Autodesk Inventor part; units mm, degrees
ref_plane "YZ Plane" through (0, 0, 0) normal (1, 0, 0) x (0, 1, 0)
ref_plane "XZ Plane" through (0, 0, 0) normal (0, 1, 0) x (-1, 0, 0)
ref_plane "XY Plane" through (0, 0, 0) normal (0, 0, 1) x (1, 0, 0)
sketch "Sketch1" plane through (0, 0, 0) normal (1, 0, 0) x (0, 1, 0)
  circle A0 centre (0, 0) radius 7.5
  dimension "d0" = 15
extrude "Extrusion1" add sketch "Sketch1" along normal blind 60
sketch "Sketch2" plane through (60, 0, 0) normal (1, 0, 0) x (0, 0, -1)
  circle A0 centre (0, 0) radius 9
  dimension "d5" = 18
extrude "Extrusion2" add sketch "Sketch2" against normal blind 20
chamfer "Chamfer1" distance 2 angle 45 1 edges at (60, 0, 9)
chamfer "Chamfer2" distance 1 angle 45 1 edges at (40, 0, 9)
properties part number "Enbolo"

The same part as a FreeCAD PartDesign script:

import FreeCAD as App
import Part
import Sketcher
Q = App.Units.Quantity


def edges_at(feature, points):
    """Names of the edges that pass closest to the given points."""
    edges = feature.Shape.Edges
    near = lambda p: min(range(len(edges)), key=lambda i: edges[i].distToShape(Part.Vertex(*p))[0])
    return sorted({f"Edge{near(p) + 1}" for p in points})

doc = App.newDocument("Part")
body = doc.addObject("PartDesign::Body", "Body")

sketch1 = body.newObject("Sketcher::SketchObject", "Sketch")
sketch1.AttachmentSupport = (doc.getObject("YZ_Plane"), [""])
sketch1.MapMode = "FlatFace"
sketch1.addGeometry(Part.Circle(App.Vector(0, 0, 0), App.Vector(0, 0, 1), 8), False)
sketch1.addConstraint([
    Sketcher.Constraint("Coincident", 0, 3, -1, 1),
    Sketcher.Constraint("Diameter", 0, Q("15 mm")),
])
pad1 = body.newObject("PartDesign::Pad", "Pad")
pad1.Profile = sketch1
pad1.Length = 60

sketch2 = body.newObject("Sketcher::SketchObject", "Sketch001")
sketch2.AttachmentSupport = (doc.getObject("YZ_Plane"), [""])
sketch2.MapMode = "FlatFace"
sketch2.AttachmentOffset = App.Placement(App.Vector(0, 0, 60), App.Rotation())
sketch2.addGeometry(Part.Circle(App.Vector(0, 0, 0), App.Vector(0, 0, 1), 9), False)
sketch2.addConstraint([
    Sketcher.Constraint("Coincident", 0, 3, -1, 1),
    Sketcher.Constraint("Diameter", 0, Q("18 mm")),
])
pad2 = body.newObject("PartDesign::Pad", "Pad001")
pad2.Profile = sketch2
pad2.Length = 20
pad2.Reversed = True
doc.recompute()

chamfer = body.newObject("PartDesign::Chamfer", "Chamfer")
chamfer.Base = (pad2, edges_at(pad2, [(60, 0, 9)]))
chamfer.Size = 2
doc.recompute()

chamfer2 = body.newObject("PartDesign::Chamfer", "Chamfer001")
chamfer2.Base = (chamfer, edges_at(chamfer, [(40, 0, 9)]))
chamfer2.Size = 1

doc.recompute()
